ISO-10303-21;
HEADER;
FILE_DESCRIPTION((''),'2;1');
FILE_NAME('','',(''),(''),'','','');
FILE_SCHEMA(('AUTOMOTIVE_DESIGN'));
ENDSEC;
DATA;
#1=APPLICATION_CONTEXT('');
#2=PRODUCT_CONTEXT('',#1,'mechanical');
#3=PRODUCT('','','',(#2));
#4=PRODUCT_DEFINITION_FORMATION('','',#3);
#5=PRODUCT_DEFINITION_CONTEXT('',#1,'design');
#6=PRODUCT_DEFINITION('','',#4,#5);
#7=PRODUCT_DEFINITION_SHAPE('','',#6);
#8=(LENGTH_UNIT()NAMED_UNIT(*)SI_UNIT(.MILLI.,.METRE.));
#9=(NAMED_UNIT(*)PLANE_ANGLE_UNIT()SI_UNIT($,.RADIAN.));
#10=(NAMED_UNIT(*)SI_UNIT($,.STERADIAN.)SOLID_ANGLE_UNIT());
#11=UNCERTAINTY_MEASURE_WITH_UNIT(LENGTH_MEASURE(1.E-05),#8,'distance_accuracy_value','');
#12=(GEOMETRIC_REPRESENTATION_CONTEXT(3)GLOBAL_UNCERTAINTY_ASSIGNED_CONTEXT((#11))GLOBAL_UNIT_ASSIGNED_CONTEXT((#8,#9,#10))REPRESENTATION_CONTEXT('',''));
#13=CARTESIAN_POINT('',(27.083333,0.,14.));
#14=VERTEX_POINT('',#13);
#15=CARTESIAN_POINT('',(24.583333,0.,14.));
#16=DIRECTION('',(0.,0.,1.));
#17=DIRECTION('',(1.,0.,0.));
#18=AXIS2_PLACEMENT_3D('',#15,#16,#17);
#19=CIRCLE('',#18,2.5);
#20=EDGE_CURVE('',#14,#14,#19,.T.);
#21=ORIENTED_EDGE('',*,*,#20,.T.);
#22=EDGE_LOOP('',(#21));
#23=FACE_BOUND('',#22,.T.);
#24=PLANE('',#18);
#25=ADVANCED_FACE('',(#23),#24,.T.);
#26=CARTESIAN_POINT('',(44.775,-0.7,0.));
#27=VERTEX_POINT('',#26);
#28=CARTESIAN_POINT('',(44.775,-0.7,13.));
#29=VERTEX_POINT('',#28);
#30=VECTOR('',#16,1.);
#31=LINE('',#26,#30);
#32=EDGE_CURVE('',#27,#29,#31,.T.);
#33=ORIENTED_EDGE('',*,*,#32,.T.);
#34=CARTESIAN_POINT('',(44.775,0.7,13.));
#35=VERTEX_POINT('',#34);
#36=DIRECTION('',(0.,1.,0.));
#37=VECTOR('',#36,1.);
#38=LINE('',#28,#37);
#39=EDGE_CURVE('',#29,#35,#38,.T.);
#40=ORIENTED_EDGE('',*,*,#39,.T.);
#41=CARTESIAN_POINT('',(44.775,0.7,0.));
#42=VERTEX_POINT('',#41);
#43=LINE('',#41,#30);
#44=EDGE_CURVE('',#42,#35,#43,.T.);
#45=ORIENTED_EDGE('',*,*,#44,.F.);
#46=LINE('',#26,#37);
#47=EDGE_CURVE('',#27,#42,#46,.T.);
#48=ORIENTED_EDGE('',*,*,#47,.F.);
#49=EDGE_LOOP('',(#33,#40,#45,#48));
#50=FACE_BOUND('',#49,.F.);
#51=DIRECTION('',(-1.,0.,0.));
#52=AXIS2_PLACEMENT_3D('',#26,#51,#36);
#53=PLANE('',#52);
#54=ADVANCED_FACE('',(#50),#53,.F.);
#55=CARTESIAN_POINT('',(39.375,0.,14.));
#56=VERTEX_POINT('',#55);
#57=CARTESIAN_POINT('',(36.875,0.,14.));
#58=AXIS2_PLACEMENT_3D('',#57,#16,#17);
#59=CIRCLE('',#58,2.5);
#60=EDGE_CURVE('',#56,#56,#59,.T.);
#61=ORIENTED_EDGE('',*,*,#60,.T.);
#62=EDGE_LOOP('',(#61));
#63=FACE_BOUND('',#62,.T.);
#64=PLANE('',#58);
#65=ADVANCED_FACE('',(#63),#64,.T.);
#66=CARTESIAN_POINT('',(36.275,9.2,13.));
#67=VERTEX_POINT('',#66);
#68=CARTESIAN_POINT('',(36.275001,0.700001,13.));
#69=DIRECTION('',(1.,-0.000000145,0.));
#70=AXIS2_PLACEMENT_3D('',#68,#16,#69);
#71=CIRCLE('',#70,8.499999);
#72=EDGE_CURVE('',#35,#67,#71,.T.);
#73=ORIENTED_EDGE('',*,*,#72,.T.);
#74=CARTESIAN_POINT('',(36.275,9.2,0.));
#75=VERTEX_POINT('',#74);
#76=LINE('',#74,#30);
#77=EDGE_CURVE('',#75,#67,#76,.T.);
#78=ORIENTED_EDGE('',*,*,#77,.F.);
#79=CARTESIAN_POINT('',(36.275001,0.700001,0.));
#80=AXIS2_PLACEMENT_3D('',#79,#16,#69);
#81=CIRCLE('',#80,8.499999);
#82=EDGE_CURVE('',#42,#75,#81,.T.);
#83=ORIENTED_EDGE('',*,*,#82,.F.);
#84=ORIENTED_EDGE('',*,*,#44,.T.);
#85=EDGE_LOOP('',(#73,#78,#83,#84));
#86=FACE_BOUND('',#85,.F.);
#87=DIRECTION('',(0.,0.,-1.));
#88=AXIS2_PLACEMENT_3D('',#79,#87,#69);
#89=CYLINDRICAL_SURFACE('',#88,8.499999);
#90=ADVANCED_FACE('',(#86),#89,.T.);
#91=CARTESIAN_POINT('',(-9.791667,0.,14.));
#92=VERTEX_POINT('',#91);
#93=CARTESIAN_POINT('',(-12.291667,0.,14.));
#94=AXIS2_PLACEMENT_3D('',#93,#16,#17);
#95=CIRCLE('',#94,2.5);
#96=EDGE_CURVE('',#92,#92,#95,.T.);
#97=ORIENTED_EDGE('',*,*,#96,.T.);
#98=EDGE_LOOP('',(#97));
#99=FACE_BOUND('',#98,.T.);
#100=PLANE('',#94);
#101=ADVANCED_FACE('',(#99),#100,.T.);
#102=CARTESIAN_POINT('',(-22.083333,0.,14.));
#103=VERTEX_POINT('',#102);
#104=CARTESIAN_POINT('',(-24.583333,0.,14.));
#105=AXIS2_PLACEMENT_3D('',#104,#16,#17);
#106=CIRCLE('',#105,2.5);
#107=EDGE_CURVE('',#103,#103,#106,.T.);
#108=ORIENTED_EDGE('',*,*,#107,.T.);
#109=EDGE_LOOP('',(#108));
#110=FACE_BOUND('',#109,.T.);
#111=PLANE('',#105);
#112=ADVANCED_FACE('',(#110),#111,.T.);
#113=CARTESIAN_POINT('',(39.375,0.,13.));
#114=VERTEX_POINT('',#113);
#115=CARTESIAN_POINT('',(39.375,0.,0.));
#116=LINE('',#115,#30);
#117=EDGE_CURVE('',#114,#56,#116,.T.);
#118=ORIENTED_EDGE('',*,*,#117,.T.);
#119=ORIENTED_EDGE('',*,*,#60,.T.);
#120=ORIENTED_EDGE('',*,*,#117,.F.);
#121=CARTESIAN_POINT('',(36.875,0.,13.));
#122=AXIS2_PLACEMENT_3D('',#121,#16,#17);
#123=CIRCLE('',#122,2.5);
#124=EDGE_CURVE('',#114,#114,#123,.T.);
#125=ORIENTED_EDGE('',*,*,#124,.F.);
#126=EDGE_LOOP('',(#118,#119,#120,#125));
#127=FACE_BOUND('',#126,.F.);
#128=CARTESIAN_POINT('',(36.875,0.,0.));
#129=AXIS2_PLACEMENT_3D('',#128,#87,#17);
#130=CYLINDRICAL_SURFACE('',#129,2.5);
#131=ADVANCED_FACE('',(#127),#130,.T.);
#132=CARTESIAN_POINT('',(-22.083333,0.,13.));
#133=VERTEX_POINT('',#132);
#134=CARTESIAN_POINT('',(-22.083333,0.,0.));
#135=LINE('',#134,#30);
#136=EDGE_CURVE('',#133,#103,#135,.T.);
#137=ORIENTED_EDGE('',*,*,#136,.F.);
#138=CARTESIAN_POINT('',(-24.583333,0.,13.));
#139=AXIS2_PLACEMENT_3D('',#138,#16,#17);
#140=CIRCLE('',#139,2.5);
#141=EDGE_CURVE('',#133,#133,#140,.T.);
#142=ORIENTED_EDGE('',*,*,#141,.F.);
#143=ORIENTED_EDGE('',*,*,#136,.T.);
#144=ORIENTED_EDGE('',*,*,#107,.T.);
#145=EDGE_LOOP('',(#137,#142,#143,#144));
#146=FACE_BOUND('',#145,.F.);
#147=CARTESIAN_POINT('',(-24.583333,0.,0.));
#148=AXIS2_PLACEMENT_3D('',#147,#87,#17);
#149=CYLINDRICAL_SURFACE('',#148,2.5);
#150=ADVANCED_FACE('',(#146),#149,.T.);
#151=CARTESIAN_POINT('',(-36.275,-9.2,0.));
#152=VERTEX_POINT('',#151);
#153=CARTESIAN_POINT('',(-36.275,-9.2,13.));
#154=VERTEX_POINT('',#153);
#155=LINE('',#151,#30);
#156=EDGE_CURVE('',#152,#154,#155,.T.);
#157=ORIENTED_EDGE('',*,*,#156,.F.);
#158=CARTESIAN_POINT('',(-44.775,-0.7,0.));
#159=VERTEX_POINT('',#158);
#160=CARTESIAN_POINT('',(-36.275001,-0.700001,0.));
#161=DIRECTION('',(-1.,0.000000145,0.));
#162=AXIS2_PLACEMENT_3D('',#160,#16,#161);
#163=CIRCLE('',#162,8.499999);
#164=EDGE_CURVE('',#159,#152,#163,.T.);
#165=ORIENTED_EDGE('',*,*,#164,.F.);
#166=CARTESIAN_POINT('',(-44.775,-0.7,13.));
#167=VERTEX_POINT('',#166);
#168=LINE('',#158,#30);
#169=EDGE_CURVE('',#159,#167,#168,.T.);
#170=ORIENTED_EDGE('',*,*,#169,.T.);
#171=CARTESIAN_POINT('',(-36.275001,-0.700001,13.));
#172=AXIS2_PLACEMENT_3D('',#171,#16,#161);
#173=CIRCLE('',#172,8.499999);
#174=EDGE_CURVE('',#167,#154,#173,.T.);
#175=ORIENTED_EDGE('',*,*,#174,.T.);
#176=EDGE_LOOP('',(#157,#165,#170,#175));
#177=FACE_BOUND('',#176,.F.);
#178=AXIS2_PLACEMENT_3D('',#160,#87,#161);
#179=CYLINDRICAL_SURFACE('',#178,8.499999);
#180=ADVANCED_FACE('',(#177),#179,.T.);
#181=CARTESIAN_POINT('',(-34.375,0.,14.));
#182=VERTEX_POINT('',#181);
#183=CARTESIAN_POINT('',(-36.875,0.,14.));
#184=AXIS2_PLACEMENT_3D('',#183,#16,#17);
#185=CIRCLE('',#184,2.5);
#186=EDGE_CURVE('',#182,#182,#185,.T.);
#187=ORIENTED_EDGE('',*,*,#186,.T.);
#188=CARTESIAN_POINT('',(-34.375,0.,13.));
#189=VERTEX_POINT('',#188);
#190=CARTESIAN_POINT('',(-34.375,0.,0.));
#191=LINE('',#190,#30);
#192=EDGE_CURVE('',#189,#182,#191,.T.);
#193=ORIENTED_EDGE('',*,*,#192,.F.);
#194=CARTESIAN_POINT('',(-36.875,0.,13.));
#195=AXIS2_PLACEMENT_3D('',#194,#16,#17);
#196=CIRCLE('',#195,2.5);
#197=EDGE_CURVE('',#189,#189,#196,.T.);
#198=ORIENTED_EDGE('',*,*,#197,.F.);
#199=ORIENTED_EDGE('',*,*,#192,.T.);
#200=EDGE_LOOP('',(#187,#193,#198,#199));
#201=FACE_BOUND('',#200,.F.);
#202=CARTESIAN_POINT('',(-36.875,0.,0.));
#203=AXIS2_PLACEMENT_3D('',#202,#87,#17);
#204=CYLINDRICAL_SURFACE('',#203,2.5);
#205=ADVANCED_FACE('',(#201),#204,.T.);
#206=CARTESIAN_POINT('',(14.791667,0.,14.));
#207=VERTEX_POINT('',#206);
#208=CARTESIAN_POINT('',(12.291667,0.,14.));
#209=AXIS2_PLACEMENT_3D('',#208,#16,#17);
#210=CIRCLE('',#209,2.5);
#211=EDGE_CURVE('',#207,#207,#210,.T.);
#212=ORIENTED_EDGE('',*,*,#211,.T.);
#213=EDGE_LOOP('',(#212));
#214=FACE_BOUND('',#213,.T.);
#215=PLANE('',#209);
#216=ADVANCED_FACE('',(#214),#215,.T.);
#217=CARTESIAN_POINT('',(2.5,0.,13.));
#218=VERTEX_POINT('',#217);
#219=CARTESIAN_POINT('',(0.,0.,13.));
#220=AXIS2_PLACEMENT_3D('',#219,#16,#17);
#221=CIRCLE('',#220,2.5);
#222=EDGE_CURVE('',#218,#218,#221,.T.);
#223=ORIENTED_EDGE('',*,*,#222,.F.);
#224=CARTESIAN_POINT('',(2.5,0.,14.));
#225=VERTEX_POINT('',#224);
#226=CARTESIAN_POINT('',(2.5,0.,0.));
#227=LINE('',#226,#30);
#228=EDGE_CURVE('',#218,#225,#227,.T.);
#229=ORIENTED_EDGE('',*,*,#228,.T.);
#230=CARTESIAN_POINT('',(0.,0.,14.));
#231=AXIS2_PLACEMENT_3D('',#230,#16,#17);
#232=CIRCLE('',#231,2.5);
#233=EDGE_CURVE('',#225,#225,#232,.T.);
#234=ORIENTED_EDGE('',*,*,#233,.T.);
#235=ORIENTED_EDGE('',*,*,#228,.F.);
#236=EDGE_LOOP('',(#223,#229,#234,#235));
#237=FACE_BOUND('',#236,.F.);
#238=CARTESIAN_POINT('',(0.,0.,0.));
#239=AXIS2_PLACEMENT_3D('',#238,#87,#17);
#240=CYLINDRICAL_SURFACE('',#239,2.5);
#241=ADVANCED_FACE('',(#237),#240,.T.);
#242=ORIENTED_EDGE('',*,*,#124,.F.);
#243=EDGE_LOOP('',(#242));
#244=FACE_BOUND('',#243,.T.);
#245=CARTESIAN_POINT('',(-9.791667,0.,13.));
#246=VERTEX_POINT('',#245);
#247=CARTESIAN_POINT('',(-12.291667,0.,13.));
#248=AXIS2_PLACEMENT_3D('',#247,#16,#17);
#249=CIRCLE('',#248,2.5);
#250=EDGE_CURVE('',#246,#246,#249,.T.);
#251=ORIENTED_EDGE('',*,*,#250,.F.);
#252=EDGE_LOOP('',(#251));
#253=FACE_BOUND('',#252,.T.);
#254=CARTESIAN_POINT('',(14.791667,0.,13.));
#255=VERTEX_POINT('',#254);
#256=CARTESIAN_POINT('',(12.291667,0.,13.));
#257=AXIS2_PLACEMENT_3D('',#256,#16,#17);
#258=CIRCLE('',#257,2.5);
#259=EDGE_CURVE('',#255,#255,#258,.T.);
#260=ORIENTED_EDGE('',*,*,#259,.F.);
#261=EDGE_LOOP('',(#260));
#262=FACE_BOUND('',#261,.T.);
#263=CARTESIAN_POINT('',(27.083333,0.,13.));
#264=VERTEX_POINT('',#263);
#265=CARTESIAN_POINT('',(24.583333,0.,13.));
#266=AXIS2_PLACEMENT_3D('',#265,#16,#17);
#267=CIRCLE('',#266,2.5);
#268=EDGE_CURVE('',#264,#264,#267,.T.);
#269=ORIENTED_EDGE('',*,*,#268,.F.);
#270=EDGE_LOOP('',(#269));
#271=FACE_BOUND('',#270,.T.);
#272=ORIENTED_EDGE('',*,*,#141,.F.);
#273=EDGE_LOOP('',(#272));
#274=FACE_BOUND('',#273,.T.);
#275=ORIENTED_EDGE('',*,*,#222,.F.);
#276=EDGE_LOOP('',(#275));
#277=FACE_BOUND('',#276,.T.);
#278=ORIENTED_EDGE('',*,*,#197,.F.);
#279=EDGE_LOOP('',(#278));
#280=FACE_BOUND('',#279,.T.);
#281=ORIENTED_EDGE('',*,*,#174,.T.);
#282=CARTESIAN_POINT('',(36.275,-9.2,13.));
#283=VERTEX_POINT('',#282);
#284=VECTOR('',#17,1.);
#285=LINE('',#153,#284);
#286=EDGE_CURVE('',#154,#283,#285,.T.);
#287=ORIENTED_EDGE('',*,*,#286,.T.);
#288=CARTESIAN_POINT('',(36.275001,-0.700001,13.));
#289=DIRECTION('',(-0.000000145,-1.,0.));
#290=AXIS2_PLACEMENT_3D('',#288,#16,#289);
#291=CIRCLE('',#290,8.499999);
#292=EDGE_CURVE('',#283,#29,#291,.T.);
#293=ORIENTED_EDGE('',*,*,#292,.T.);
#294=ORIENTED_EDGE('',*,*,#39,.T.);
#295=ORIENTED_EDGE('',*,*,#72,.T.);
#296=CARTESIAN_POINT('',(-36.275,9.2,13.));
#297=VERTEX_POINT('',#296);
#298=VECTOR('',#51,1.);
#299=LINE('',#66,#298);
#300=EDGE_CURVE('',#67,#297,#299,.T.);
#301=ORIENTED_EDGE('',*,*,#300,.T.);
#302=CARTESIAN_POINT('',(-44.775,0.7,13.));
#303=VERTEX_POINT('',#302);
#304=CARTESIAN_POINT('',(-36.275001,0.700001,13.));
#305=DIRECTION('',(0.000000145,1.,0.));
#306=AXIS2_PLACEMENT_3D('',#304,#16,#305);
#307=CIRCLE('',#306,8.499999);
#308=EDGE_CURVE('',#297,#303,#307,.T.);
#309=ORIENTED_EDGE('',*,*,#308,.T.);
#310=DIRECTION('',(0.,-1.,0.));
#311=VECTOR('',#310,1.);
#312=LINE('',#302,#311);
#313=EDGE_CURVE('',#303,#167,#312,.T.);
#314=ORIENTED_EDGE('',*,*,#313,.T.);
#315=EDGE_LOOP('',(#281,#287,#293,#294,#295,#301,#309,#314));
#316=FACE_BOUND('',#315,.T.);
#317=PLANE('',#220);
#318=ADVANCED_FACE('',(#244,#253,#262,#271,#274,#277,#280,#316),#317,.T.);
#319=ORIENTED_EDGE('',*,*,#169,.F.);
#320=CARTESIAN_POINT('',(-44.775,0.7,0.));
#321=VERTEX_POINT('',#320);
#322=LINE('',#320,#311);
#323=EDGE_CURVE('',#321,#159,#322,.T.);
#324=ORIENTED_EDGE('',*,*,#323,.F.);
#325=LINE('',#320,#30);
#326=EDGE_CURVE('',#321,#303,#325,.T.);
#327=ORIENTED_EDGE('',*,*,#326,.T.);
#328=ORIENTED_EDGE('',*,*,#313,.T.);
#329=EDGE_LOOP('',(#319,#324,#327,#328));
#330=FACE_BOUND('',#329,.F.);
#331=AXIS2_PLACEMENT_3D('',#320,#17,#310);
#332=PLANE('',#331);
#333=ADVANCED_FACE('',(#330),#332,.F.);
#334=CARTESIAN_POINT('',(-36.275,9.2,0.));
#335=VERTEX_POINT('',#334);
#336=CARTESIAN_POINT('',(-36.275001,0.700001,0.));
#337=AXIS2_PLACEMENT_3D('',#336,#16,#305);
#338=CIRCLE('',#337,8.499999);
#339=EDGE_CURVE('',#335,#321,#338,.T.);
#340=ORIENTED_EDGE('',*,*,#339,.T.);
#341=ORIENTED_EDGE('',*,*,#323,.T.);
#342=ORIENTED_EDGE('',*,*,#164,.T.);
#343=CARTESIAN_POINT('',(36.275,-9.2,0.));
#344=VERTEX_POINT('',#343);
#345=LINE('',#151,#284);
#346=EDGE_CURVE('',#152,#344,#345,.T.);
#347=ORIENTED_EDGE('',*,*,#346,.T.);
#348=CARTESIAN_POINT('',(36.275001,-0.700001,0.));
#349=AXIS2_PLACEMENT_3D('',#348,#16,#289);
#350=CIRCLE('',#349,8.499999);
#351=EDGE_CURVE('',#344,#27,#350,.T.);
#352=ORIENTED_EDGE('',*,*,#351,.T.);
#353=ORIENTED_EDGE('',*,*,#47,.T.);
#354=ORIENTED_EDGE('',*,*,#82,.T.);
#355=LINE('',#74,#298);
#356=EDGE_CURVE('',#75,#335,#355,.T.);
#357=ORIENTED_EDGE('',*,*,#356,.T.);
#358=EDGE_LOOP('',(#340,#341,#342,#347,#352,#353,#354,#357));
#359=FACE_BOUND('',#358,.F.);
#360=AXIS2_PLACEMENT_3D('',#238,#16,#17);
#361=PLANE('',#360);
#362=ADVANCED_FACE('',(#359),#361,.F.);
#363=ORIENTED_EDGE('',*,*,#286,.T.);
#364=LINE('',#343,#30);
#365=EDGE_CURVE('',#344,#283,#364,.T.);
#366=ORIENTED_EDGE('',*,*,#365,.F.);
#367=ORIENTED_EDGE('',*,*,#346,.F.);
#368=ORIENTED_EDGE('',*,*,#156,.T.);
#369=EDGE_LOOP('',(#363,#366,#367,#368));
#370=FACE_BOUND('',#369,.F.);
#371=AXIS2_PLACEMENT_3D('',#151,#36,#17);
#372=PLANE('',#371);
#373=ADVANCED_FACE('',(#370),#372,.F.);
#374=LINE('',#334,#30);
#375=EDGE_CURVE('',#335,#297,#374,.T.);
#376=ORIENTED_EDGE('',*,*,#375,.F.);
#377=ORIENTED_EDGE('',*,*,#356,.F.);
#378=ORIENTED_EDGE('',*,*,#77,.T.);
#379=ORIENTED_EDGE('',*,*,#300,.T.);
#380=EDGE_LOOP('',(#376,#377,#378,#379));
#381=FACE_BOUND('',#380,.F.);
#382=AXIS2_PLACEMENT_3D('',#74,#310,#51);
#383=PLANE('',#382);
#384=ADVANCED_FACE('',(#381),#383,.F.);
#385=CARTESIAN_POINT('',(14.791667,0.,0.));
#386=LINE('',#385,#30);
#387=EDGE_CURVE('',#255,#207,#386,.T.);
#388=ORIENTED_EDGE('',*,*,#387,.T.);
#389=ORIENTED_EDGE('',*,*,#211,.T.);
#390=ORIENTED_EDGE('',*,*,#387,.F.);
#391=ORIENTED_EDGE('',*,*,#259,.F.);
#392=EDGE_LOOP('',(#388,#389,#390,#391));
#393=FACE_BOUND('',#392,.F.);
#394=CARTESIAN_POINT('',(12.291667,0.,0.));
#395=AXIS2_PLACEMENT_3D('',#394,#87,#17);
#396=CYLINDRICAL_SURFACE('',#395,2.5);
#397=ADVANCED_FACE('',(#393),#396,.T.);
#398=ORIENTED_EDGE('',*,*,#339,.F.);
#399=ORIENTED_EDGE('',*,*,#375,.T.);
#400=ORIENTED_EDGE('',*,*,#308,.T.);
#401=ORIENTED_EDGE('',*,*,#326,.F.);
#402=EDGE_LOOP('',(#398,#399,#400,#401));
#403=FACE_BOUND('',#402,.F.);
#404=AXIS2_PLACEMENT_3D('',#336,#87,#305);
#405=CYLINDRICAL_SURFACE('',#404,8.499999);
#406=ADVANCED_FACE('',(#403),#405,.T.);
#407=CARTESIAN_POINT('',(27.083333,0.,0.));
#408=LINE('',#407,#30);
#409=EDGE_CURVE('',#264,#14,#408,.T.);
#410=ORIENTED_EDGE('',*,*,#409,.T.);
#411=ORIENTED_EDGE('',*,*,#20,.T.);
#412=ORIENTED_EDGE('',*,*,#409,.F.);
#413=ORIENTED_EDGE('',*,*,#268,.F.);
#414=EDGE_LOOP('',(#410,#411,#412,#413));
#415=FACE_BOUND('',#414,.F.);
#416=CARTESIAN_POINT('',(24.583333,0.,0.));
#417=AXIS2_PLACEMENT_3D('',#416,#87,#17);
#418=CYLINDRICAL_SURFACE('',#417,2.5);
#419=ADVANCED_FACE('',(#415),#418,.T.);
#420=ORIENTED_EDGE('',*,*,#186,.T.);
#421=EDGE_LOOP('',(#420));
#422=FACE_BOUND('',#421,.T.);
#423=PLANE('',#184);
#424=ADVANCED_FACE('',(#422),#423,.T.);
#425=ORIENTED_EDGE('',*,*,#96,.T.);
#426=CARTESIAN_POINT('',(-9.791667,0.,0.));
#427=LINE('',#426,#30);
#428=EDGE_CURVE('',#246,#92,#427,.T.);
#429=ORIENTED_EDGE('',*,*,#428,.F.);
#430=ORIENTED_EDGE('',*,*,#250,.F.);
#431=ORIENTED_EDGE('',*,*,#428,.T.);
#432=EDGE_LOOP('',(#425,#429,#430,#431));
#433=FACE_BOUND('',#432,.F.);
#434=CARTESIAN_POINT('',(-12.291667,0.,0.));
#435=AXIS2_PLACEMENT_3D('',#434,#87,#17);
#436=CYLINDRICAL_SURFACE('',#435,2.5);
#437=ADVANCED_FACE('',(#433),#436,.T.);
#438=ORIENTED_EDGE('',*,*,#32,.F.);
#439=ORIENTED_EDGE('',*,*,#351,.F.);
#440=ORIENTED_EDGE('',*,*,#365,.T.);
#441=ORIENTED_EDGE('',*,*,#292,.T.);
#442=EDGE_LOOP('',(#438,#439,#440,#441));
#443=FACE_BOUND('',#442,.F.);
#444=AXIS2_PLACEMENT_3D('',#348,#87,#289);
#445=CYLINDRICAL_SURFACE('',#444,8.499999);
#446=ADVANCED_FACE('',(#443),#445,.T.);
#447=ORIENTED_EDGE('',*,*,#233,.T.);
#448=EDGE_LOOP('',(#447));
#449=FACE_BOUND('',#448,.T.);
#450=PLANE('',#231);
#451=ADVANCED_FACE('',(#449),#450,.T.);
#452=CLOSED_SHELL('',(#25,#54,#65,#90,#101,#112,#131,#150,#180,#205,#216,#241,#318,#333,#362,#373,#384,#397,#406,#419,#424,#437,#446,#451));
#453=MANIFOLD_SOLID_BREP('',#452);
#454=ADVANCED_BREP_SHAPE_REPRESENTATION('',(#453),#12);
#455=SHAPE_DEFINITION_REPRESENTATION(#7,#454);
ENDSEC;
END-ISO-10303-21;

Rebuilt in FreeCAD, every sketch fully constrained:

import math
import FreeCAD as App
import Part
import Sketcher

V = App.Vector

doc = App.newDocument("Part")
body = doc.addObject("PartDesign::Body", "Body")

# Sketch on XY plane
sketch1 = body.newObject("Sketcher::SketchObject", "Sketch")
sketch1.AttachmentSupport = (doc.getObject("XY_Plane"), [""])
sketch1.MapMode = "FlatFace"
sketch1.addGeometry([
    Part.LineSegment(V(36.3, 9.2, 0), V(-36.3, 9.2, 0)),  # 0
    Part.ArcOfCircle(Part.Circle(V(-36.3, 0.7, 0), V(0, 0, 1), 8.5), math.radians(90), math.radians(180)),  # 1
    Part.LineSegment(V(-44.8, 0.7, 0), V(-44.8, -0.7, 0)),  # 2
    Part.ArcOfCircle(Part.Circle(V(-36.3, -0.7, 0), V(0, 0, 1), 8.5), math.radians(180), math.radians(270)),  # 3
    Part.LineSegment(V(-36.3, -9.2, 0), V(36.3, -9.2, 0)),  # 4
    Part.ArcOfCircle(Part.Circle(V(36.3, -0.7, 0), V(0, 0, 1), 8.5), math.radians(-90), math.radians(0)),  # 5
    Part.LineSegment(V(44.8, -0.7, 0), V(44.8, 0.7, 0)),  # 6
    Part.ArcOfCircle(Part.Circle(V(36.3, 0.7, 0), V(0, 0, 1), 8.5), math.radians(0), math.radians(90)),  # 7
    Part.Circle(V(-36.9, 0, 0), V(0, 0, 1), 2.5),  # 8
    Part.Circle(V(-24.6, 0, 0), V(0, 0, 1), 2.5),  # 9
    Part.Circle(V(-12.3, 0, 0), V(0, 0, 1), 2.5),  # 10
    Part.Circle(V(0, 0, 0), V(0, 0, 1), 2.5),  # 11
    Part.Circle(V(12.3, 0, 0), V(0, 0, 1), 2.5),  # 12
    Part.Circle(V(24.6, 0, 0), V(0, 0, 1), 2.5),  # 13
    Part.Circle(V(36.9, 0, 0), V(0, 0, 1), 2.5),  # 14
], False)
sketch1.addConstraint([
    Sketcher.Constraint("Tangent", 0, 2, 1, 1),
    Sketcher.Constraint("Tangent", 1, 2, 2, 1),
    Sketcher.Constraint("Tangent", 2, 2, 3, 1),
    Sketcher.Constraint("Tangent", 3, 2, 4, 1),
    Sketcher.Constraint("Tangent", 4, 2, 5, 1),
    Sketcher.Constraint("Tangent", 5, 2, 6, 1),
    Sketcher.Constraint("Tangent", 6, 2, 7, 1),
    Sketcher.Constraint("Tangent", 7, 2, 0, 1),
    Sketcher.Constraint("Horizontal", 0),
    Sketcher.Constraint("Vertical", 2),
    Sketcher.Constraint("Horizontal", 4),
    Sketcher.Constraint("Vertical", 6),
    Sketcher.Constraint("Coincident", 11, 3, -1, 1),
    Sketcher.Constraint("Equal", 1, 3),
    Sketcher.Constraint("Equal", 3, 5),
    Sketcher.Constraint("Equal", 5, 7),
    Sketcher.Constraint("Equal", 8, 9),
    Sketcher.Constraint("Equal", 9, 10),
    Sketcher.Constraint("Equal", 10, 11),
    Sketcher.Constraint("Equal", 11, 12),
    Sketcher.Constraint("Equal", 12, 13),
    Sketcher.Constraint("Equal", 13, 14),
    Sketcher.Constraint("Symmetric", 1, 3, 5, 3, -1, 1),
    Sketcher.Constraint("Symmetric", 10, 3, 12, 3, -1, 1),
    Sketcher.Constraint("Symmetric", 9, 3, 13, 3, -1, 1),
    Sketcher.Constraint("Symmetric", 8, 3, 14, 3, -1, 1),
    Sketcher.Constraint("PointOnObject", 8, 3, -1),
    Sketcher.Constraint("PointOnObject", 9, 3, -1),
    Sketcher.Constraint("PointOnObject", 10, 3, -1),
    Sketcher.Constraint("Diameter", 8, 5.0),
    Sketcher.Constraint("Radius", 1, 8.499999),
    Sketcher.Constraint("DistanceY", 2, 2, 2, 1, 1.4),
    Sketcher.Constraint("DistanceX", 0, 2, 0, 1, 72.55),
    Sketcher.Constraint("DistanceX", 8, 3, 1, 3, 0.599999),
    Sketcher.Constraint("DistanceX", 9, 3, 12, 3, 36.875),
    Sketcher.Constraint("DistanceX", 1, 3, 9, 3, 11.691668),
])
pad1 = body.newObject("PartDesign::Pad", "Pad")
pad1.Profile = sketch1
pad1.Length = 13

# Sketch on XY plane
sketch2 = body.newObject("Sketcher::SketchObject", "Sketch001")
sketch2.AttachmentSupport = (doc.getObject("XY_Plane"), [""])
sketch2.MapMode = "FlatFace"
sketch2.addGeometry([
    Part.Circle(V(-36.9, 0, 0), V(0, 0, 1), 2.5),  # 0
    Part.Circle(V(-24.6, 0, 0), V(0, 0, 1), 2.5),  # 1
    Part.Circle(V(-12.3, 0, 0), V(0, 0, 1), 2.5),  # 2
    Part.Circle(V(0, 0, 0), V(0, 0, 1), 2.5),  # 3
    Part.Circle(V(12.3, 0, 0), V(0, 0, 1), 2.5),  # 4
    Part.Circle(V(36.9, 0, 0), V(0, 0, 1), 2.5),  # 5
    Part.Circle(V(24.6, 0, 0), V(0, 0, 1), 2.5),  # 6
], False)
sketch2.addConstraint([
    Sketcher.Constraint("Coincident", 3, 3, -1, 1),
    Sketcher.Constraint("Equal", 0, 1),
    Sketcher.Constraint("Equal", 1, 2),
    Sketcher.Constraint("Equal", 2, 3),
    Sketcher.Constraint("Equal", 3, 4),
    Sketcher.Constraint("Equal", 4, 5),
    Sketcher.Constraint("Equal", 5, 6),
    Sketcher.Constraint("Symmetric", 2, 3, 4, 3, -1, 1),
    Sketcher.Constraint("Symmetric", 0, 3, 5, 3, -1, 1),
    Sketcher.Constraint("Symmetric", 1, 3, 6, 3, -1, 1),
    Sketcher.Constraint("PointOnObject", 0, 3, -1),
    Sketcher.Constraint("PointOnObject", 1, 3, -1),
    Sketcher.Constraint("PointOnObject", 2, 3, -1),
    Sketcher.Constraint("Diameter", 0, 5.0),
    Sketcher.Constraint("DistanceX", 0, 3, 5, 3, 73.75),
    Sketcher.Constraint("DistanceX", 1, 3, 4, 3, 36.875),
    Sketcher.Constraint("DistanceX", 1, 3, -1, 1, 24.583333),
])
pad2 = body.newObject("PartDesign::Pad", "Pad001")
pad2.Profile = sketch2
pad2.Length = 14

doc.recompute()
